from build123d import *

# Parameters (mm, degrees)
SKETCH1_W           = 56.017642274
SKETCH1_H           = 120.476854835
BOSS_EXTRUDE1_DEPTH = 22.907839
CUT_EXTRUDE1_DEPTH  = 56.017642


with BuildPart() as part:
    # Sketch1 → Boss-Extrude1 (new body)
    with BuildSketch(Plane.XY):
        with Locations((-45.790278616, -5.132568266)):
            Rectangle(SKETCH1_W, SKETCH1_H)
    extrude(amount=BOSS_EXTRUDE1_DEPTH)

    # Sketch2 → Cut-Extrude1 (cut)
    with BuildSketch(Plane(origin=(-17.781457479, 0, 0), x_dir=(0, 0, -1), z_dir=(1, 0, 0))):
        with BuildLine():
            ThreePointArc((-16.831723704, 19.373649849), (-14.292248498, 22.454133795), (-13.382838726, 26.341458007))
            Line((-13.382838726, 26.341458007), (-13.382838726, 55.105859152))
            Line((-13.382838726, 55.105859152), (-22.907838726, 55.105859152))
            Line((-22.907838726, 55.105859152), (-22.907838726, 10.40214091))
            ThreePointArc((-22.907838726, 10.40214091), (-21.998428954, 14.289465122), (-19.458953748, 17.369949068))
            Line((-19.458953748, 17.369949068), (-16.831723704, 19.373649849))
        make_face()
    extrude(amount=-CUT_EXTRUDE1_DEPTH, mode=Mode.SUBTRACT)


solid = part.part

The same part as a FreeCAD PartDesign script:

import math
import FreeCAD as App
import Part
import Sketcher
Q = App.Units.Quantity


def add_polygon(sketch, points):
    """Adds a closed chain of lines whose ends are joined by coincident constraints."""
    first, n = sketch.GeometryCount, len(points)
    for a, b in zip(points, points[1:] + points[:1]):
        sketch.addGeometry(Part.LineSegment(App.Vector(*a, 0), App.Vector(*b, 0)), False)
    for i in range(n):
        sketch.addConstraint(Sketcher.Constraint("Coincident", first + i, 2, first + (i + 1) % n, 1))

doc = App.newDocument("Part")
body = doc.addObject("PartDesign::Body", "Body")

# Sketch on XY plane
sketch1 = body.newObject("Sketcher::SketchObject", "Sketch")
sketch1.AttachmentSupport = (doc.getObject("XY_Plane"), [""])
sketch1.MapMode = "FlatFace"
add_polygon(sketch1, [(-74, 55), (-74, -65), (-18, -65), (-18, 55)])  # lines 0-3
sketch1.addConstraint([
    Sketcher.Constraint("Vertical", 0),
    Sketcher.Constraint("Horizontal", 1),
    Sketcher.Constraint("Vertical", 2),
    Sketcher.Constraint("Horizontal", 3),
    Sketcher.Constraint("DistanceX", 0, 2, -1, 1, Q("73.7991 mm")),
    Sketcher.Constraint("DistanceX", 1, 1, 1, 2, Q("56.017642 mm")),
    Sketcher.Constraint("DistanceY", 0, 2, 0, 1, Q("120.476855 mm")),
    Sketcher.Constraint("DistanceY", -1, 1, 2, 2, Q("55.105859 mm")),
])
pad1 = body.newObject("PartDesign::Pad", "Pad")
pad1.Profile = sketch1
pad1.Length = 22.907839

# Sketch on YZ plane
sketch2 = body.newObject("Sketcher::SketchObject", "Sketch001")
sketch2.AttachmentSupport = (doc.getObject("YZ_Plane"), [""])
sketch2.MapMode = "FlatFace"
sketch2.AttachmentOffset = App.Placement(App.Vector(0, 0, -17.781457), App.Rotation())
sketch2.addGeometry([
    Part.ArcOfCircle(Part.Circle(App.Vector(26.3, 22.1, 0), App.Vector(0, 0, 1), 8.8), math.radians(-143), math.radians(-90)),  # 0
    Part.LineSegment(App.Vector(26.3, 13.4, 0), App.Vector(55.1, 13.4, 0)),  # 1
    Part.LineSegment(App.Vector(55.1, 13.4, 0), App.Vector(55.1, 22.9, 0)),  # 2
    Part.LineSegment(App.Vector(55.1, 22.9, 0), App.Vector(10.4, 22.9, 0)),  # 3
    Part.ArcOfCircle(Part.Circle(App.Vector(10.4, 14.1, 0), App.Vector(0, 0, 1), 8.8), math.radians(37), math.radians(90)),  # 4
    Part.LineSegment(App.Vector(17.4, 19.5, 0), App.Vector(19.4, 16.8, 0)),  # 5
], False)
sketch2.addConstraint([
    Sketcher.Constraint("Tangent", 0, 2, 1, 1),
    Sketcher.Constraint("Coincident", 1, 2, 2, 1),
    Sketcher.Constraint("Coincident", 2, 2, 3, 1),
    Sketcher.Constraint("Tangent", 3, 2, 4, 2),
    Sketcher.Constraint("Tangent", 4, 1, 5, 1),
    Sketcher.Constraint("Tangent", 5, 2, 0, 1),
    Sketcher.Constraint("Horizontal", 1),
    Sketcher.Constraint("Vertical", 2),
    Sketcher.Constraint("Horizontal", 3),
    Sketcher.Constraint("Equal", 0, 4),
    Sketcher.Constraint("Radius", 0, Q("0.345 in")),
    Sketcher.Constraint("DistanceY", 2, 1, 2, 2, Q("0.375 in")),
    Sketcher.Constraint("DistanceX", 1, 1, 1, 2, Q("28.764401 mm")),
    Sketcher.Constraint("DistanceX", 3, 2, 3, 1, Q("44.703718 mm")),
    Sketcher.Constraint("DistanceX", -1, 1, 0, 3, Q("26.341458 mm")),
    Sketcher.Constraint("DistanceY", -1, 1, 0, 3, Q("22.145839 mm")),
])
pocket1 = body.newObject("PartDesign::Pocket", "Pocket")
pocket1.Profile = sketch2
pocket1.Length = 56.017642

doc.recompute()
